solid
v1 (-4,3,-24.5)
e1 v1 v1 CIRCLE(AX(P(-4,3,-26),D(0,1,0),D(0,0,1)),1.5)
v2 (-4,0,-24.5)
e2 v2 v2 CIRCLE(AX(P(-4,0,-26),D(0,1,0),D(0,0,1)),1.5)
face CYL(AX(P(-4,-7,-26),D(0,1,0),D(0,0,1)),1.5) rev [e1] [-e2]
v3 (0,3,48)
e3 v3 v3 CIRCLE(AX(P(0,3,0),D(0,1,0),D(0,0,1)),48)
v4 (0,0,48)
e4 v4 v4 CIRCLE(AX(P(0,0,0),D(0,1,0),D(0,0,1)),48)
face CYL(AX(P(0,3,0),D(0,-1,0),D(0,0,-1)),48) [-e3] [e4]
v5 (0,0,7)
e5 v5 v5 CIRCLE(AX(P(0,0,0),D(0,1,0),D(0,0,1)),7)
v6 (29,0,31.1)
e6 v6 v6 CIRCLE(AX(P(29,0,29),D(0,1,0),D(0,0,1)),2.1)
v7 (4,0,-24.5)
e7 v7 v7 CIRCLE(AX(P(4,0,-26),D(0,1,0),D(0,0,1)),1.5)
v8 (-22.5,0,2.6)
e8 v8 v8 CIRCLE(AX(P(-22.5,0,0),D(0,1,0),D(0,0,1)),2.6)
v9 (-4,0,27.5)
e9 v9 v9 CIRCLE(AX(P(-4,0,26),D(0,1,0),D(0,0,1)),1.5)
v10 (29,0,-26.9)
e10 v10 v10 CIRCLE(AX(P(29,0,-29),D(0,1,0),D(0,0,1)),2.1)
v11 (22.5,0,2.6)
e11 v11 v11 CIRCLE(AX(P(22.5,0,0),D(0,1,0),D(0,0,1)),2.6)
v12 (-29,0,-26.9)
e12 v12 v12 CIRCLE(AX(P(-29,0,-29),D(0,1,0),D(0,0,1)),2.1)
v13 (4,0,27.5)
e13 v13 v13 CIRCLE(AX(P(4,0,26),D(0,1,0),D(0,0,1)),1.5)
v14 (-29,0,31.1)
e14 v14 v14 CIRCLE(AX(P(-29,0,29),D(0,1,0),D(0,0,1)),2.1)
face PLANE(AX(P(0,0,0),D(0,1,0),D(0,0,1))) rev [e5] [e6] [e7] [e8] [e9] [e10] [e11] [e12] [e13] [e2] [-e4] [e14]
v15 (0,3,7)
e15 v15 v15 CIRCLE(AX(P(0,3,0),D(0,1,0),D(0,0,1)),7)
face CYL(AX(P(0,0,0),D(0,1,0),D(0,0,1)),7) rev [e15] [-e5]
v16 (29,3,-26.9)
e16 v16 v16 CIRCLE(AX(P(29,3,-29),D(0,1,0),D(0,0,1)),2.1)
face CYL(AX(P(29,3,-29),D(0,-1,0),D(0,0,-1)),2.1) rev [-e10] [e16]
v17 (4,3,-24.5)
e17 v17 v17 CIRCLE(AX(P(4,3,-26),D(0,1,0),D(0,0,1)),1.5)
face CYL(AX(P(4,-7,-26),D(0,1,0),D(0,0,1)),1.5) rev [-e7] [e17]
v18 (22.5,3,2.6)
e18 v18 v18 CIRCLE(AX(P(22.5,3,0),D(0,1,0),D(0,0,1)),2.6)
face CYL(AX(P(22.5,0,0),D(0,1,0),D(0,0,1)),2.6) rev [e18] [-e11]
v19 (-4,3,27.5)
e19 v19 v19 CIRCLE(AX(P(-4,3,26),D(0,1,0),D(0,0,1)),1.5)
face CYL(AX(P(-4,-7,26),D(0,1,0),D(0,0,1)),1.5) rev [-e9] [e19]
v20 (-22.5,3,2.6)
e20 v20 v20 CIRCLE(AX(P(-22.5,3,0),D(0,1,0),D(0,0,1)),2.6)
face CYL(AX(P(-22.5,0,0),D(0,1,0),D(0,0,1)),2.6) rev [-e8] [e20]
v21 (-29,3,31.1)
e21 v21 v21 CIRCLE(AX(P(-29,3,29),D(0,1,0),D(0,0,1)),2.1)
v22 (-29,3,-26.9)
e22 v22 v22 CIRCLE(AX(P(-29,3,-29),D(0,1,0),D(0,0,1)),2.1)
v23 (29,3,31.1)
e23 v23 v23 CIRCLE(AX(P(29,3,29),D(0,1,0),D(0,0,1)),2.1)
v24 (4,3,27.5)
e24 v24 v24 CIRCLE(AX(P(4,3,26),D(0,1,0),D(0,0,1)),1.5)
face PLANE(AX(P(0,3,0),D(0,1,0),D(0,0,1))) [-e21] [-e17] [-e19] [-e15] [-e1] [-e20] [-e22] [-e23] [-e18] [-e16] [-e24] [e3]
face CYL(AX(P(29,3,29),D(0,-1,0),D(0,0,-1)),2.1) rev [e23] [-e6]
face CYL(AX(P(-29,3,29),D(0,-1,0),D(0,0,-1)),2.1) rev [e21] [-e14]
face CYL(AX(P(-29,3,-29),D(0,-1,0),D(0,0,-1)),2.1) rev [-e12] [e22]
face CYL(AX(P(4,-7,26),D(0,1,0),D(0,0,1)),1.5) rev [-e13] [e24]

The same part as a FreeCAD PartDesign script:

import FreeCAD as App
import Part
import Sketcher
from FreeCAD import Vector

doc = App.newDocument("Part")
body = doc.addObject("PartDesign::Body", "Body")

sketch1 = doc.addObject("Sketcher::SketchObject", "Sketch")
body.addObject(sketch1)
sketch1.AttachmentSupport = (doc.XZ_Plane, [""])
sketch1.MapMode = "FlatFace"
sketch1.addGeometry([
    Part.Circle(Vector(0, 0, 0), Vector(0, 0, 1), 48),
    Part.Circle(Vector(-29, -29, 0), Vector(0, 0, 1), 2.1),
    Part.Circle(Vector(-29, 29, 0), Vector(0, 0, 1), 2.1),
    Part.Circle(Vector(29, -29, 0), Vector(0, 0, 1), 2.1),
    Part.Circle(Vector(29, 29, 0), Vector(0, 0, 1), 2.1),
], False)
sketch1.addConstraint([
    Sketcher.Constraint("Coincident", 0, 3, -1, 1),
    Sketcher.Constraint("Equal", 1, 2),
    Sketcher.Constraint("Equal", 2, 3),
    Sketcher.Constraint("Equal", 3, 4),
    Sketcher.Constraint("Symmetric", 2, 3, 3, 3, -1, 1),
    Sketcher.Constraint("Symmetric", 1, 3, 4, 3, -1, 1),
    Sketcher.Constraint("Symmetric", 1, 3, 3, 3, -2),
    Sketcher.Constraint("Diameter", 0, 96.0),
    Sketcher.Constraint("Diameter", 1, 4.2),
    Sketcher.Constraint("DistanceX", 1, 3, -1, 1, 29.0),
    Sketcher.Constraint("DistanceY", 1, 3, -1, 1, 29.0),
])
pad1 = doc.addObject("PartDesign::Pad", "Pad")
body.addObject(pad1)
pad1.Profile = sketch1
pad1.Length = 3
pad1.Reversed = True

sketch2 = doc.addObject("Sketcher::SketchObject", "Sketch001")
body.addObject(sketch2)
sketch2.AttachmentSupport = (doc.XZ_Plane, [""])
sketch2.MapMode = "FlatFace"
sketch2.AttachmentOffset = App.Placement(Vector(0, 0, -3), App.Rotation())
sketch2.addGeometry([
    Part.Circle(Vector(0, 0, 0), Vector(0, 0, 1), 7),
    Part.Circle(Vector(-22.5, 0, 0), Vector(0, 0, 1), 2.6),
    Part.Circle(Vector(22.5, 0, 0), Vector(0, 0, 1), 2.6),
], False)
sketch2.addConstraint([
    Sketcher.Constraint("Coincident", 0, 3, -1, 1),
    Sketcher.Constraint("Equal", 1, 2),
    Sketcher.Constraint("Symmetric", 1, 3, 2, 3, -1, 1),
    Sketcher.Constraint("PointOnObject", 1, 3, -1),
    Sketcher.Constraint("Diameter", 0, 14.0),
    Sketcher.Constraint("Diameter", 1, 5.2),
    Sketcher.Constraint("DistanceX", 1, 3, 2, 3, 45.0),
])
pocket1 = doc.addObject("PartDesign::Pocket", "Pocket")
body.addObject(pocket1)
pocket1.Profile = sketch2
pocket1.Type = "ThroughAll"
pocket1.Reversed = True

sketch3 = doc.addObject("Sketcher::SketchObject", "Sketch002")
body.addObject(sketch3)
sketch3.AttachmentSupport = (doc.XZ_Plane, [""])
sketch3.MapMode = "FlatFace"
sketch3.AttachmentOffset = App.Placement(Vector(0, 0, -3), App.Rotation())
sketch3.addGeometry([
    Part.Circle(Vector(4, -26, 0), Vector(0, 0, 1), 1.5),
    Part.Circle(Vector(-4, -26, 0), Vector(0, 0, 1), 1.5),
    Part.Circle(Vector(-4, 26, 0), Vector(0, 0, 1), 1.5),
    Part.Circle(Vector(4, 26, 0), Vector(0, 0, 1), 1.5),
], False)
sketch3.addConstraint([
    Sketcher.Constraint("Equal", 0, 1),
    Sketcher.Constraint("Equal", 1, 2),
    Sketcher.Constraint("Equal", 2, 3),
    Sketcher.Constraint("Symmetric", 0, 3, 2, 3, -1, 1),
    Sketcher.Constraint("Symmetric", 1, 3, 3, 3, -1, 1),
    Sketcher.Constraint("Symmetric", 0, 3, 1, 3, -2),
    Sketcher.Constraint("Diameter", 0, 3.0),
    Sketcher.Constraint("DistanceX", -1, 1, 0, 3, 4.0),
    Sketcher.Constraint("DistanceY", 0, 3, -1, 1, 26.0),
])
pocket2 = doc.addObject("PartDesign::Pocket", "Pocket001")
body.addObject(pocket2)
pocket2.Profile = sketch3
pocket2.Length = 10
pocket2.Reversed = True

doc.recompute()
